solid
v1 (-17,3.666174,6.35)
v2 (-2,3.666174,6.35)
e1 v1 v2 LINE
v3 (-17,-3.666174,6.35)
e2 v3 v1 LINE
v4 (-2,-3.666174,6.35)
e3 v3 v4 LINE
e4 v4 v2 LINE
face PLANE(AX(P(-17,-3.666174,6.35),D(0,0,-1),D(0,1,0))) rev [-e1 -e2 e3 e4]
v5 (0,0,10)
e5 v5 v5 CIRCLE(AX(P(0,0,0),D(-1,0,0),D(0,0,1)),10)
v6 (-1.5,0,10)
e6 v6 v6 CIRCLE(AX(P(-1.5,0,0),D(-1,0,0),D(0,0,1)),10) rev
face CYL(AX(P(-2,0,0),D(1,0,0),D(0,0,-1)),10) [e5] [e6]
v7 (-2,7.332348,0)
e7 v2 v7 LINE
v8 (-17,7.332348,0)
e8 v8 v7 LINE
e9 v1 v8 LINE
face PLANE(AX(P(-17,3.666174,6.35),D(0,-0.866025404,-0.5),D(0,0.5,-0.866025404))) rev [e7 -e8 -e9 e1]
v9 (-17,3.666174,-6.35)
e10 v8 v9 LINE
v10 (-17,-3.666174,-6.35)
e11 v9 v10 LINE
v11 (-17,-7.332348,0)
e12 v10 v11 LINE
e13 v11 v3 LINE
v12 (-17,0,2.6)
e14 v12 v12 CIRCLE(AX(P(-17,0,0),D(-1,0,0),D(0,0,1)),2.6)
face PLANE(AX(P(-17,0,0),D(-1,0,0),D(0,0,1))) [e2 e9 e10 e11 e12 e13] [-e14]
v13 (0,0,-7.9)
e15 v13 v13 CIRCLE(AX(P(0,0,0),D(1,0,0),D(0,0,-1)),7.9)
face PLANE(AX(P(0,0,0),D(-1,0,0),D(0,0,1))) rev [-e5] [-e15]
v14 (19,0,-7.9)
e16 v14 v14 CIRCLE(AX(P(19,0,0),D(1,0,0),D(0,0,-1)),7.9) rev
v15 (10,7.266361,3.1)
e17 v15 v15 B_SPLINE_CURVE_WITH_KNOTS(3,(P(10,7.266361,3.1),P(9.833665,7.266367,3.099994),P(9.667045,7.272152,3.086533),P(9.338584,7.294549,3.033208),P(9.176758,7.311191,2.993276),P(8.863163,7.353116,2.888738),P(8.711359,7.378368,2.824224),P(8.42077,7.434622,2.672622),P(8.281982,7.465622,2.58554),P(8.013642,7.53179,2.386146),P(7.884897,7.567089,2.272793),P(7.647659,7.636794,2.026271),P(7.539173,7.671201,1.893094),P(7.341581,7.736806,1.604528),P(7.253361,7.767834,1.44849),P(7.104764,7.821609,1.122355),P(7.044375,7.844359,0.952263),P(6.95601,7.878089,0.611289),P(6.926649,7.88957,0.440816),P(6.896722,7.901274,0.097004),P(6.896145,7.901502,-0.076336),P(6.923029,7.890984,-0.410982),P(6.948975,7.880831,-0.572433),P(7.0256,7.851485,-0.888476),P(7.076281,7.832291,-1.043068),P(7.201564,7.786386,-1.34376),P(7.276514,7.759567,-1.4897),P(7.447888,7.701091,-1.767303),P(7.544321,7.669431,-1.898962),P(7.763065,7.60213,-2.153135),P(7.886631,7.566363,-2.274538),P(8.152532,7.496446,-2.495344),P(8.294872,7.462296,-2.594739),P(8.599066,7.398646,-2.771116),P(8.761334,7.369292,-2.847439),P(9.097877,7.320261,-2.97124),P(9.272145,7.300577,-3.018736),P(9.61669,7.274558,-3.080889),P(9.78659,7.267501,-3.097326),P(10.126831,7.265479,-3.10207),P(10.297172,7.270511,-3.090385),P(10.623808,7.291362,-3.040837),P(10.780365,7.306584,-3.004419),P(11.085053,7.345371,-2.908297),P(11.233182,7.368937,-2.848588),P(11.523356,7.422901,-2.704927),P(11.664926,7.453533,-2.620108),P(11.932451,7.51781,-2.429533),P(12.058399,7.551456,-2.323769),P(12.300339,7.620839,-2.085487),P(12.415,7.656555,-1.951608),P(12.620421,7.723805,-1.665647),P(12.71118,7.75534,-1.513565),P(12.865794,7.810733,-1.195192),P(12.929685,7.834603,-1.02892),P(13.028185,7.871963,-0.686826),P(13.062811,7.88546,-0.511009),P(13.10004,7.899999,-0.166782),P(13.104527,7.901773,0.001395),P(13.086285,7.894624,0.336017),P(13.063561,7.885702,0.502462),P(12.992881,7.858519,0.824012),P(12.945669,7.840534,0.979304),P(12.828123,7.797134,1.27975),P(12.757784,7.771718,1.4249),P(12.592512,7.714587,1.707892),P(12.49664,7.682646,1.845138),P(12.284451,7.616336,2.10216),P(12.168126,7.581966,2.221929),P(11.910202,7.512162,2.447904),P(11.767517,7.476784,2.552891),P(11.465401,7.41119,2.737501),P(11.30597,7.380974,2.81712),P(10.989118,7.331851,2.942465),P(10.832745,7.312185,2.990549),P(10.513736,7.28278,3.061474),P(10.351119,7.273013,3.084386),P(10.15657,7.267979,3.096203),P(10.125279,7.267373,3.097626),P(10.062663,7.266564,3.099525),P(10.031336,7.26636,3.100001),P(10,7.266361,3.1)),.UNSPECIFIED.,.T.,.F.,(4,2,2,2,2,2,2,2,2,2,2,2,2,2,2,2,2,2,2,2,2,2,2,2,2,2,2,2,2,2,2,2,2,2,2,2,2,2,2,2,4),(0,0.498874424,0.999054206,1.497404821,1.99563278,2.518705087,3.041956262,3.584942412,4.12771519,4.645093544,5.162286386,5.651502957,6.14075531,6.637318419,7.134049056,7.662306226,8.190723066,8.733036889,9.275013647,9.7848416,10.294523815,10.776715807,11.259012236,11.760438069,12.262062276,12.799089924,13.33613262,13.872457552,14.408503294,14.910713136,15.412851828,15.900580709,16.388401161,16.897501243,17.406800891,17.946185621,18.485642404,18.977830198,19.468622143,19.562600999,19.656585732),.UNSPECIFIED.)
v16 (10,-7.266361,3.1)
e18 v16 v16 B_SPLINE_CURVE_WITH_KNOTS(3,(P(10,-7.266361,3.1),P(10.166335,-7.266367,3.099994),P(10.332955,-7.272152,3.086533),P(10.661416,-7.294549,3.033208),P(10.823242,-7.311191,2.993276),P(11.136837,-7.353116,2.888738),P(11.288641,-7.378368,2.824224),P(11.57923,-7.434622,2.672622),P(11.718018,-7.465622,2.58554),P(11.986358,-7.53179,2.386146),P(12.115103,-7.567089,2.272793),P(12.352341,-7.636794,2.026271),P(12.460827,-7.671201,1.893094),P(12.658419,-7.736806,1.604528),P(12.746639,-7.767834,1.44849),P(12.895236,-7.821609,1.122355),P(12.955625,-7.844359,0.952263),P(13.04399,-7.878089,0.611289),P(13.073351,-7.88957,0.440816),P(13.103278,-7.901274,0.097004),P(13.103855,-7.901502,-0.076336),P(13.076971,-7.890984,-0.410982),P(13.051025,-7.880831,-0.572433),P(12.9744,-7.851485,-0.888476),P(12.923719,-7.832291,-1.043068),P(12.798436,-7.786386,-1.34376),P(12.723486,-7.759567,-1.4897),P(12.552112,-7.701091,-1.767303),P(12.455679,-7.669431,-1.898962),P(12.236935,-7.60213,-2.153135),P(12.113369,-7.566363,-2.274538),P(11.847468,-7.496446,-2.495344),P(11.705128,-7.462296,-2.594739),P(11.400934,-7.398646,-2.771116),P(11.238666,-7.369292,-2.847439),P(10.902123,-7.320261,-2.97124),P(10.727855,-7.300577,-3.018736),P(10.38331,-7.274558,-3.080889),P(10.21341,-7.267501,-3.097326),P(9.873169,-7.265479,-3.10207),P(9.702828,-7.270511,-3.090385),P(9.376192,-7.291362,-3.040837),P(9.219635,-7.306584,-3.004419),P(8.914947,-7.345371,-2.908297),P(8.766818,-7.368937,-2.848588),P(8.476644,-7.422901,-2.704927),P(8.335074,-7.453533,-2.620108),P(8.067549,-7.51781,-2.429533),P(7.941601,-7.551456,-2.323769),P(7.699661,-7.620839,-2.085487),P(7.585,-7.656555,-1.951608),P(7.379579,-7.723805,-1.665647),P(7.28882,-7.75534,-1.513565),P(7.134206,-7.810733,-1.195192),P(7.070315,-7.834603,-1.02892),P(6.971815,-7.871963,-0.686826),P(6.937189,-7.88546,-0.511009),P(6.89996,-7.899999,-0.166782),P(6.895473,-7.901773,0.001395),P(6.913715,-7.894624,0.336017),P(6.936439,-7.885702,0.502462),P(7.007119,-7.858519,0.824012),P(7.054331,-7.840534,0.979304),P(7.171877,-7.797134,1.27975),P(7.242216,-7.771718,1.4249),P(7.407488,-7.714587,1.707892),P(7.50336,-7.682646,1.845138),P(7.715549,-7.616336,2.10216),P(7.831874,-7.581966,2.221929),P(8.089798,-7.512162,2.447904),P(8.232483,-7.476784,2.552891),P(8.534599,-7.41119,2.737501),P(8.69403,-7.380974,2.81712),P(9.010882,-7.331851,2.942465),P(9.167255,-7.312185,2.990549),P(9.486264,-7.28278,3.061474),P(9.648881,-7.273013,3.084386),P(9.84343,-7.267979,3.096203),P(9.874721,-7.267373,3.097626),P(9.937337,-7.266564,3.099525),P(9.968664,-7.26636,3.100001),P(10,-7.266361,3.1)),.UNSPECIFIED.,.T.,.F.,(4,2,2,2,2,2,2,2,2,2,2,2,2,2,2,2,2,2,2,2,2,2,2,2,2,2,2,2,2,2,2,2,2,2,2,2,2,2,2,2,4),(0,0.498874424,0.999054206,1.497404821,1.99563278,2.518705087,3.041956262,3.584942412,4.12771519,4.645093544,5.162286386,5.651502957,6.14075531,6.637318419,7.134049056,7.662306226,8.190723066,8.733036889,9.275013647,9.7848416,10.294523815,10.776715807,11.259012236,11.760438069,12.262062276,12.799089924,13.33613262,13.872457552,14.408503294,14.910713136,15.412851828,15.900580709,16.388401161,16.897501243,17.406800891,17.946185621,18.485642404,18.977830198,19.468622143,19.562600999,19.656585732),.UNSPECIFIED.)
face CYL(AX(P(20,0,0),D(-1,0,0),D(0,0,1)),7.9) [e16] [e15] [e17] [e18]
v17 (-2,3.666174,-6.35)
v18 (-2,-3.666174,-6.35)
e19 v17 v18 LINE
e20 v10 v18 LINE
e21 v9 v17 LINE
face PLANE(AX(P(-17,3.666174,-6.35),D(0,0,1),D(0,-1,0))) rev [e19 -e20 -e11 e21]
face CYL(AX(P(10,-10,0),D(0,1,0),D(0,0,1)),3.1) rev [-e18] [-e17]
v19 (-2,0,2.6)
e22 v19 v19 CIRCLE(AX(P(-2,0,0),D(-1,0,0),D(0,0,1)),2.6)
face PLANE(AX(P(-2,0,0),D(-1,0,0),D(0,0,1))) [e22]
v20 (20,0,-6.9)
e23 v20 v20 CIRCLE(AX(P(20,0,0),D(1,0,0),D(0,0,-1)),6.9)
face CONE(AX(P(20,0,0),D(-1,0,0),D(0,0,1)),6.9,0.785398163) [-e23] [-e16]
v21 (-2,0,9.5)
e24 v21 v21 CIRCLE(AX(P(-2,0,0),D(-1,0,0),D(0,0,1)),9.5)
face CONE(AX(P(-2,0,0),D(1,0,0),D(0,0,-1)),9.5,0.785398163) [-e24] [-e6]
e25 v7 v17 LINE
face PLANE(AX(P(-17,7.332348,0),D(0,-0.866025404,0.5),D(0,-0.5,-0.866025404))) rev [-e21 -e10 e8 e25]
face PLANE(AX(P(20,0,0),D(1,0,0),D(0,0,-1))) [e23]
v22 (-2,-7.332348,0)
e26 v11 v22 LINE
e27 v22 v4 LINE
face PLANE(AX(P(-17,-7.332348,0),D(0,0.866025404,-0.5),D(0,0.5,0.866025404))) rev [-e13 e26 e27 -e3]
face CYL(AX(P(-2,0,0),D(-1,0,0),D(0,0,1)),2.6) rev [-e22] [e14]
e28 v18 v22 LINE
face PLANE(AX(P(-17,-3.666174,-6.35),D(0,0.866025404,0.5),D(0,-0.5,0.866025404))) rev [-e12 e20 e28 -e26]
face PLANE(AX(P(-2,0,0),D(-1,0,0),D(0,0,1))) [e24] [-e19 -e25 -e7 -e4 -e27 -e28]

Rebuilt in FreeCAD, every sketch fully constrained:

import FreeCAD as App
import Part
import Sketcher
from FreeCAD import Vector
Q = App.Units.Quantity


def edges_at(feature, points):
    """Names of the edges that pass closest to the given points."""
    edges = feature.Shape.Edges
    near = lambda p: min(range(len(edges)), key=lambda i: edges[i].distToShape(Part.Vertex(*p))[0])
    return sorted({f"Edge{near(p) + 1}" for p in points})


def add_polygon(sketch, points):
    """Adds a closed chain of lines whose ends are joined by coincident constraints."""
    first, n = sketch.GeometryCount, len(points)
    for a, b in zip(points, points[1:] + points[:1]):
        sketch.addGeometry(Part.LineSegment(App.Vector(*a, 0), App.Vector(*b, 0)), False)
    for i in range(n):
        sketch.addConstraint(Sketcher.Constraint("Coincident", first + i, 2, first + (i + 1) % n, 1))

doc = App.newDocument("Part")
body = doc.addObject("PartDesign::Body", "Body")

# Sketch on YZ plane
sketch1 = body.newObject("Sketcher::SketchObject", "Sketch")
sketch1.AttachmentSupport = (doc.getObject("YZ_Plane"), [""])
sketch1.MapMode = "FlatFace"
sketch1.addGeometry(Part.Circle(Vector(0, 0, 0), Vector(0, 0, 1), 8), False)
sketch1.addConstraint([
    Sketcher.Constraint("Coincident", 0, 3, -1, 1),
    Sketcher.Constraint("Diameter", 0, Q("15.8 mm")),
])
pad1 = body.newObject("PartDesign::Pad", "Pad")
pad1.Profile = sketch1
pad1.Length = 20

# Sketch on YZ plane
sketch2 = body.newObject("Sketcher::SketchObject", "Sketch001")
sketch2.AttachmentSupport = (doc.getObject("YZ_Plane"), [""])
sketch2.MapMode = "FlatFace"
sketch2.addGeometry(Part.Circle(Vector(0, 0, 0), Vector(0, 0, 1), 10), False)
sketch2.addConstraint([
    Sketcher.Constraint("Coincident", 0, 3, -1, 1),
    Sketcher.Constraint("Diameter", 0, Q("20 mm")),
])
pad2 = body.newObject("PartDesign::Pad", "Pad001")
pad2.Profile = sketch2
pad2.Length = 2
pad2.Reversed = True

# Sketch on YZ plane
sketch3 = body.newObject("Sketcher::SketchObject", "Sketch002")
sketch3.AttachmentSupport = (doc.getObject("YZ_Plane"), [""])
sketch3.MapMode = "FlatFace"
sketch3.AttachmentOffset = App.Placement(Vector(0, 0, -2), App.Rotation())
add_polygon(sketch3, [(4, 6), (7, 0), (4, -6), (-4, -6), (-7, 0), (-4, 6)])  # lines 0-5
sketch3.addConstraint([
    Sketcher.Constraint("Horizontal", 2),
    Sketcher.Constraint("Horizontal", 5),
    Sketcher.Constraint("Symmetric", 0, 2, 3, 2, -1, 1),
    Sketcher.Constraint("Symmetric", 1, 2, 4, 2, -1, 1),
    Sketcher.Constraint("PointOnObject", 0, 2, -1),
    Sketcher.Constraint("Parallel", 0, 3),
    Sketcher.Constraint("Vertical", 2, 2, 4, 2),
    Sketcher.Constraint("Angle", 0, Q("-60 deg")),
    Sketcher.Constraint("DistanceY", 2, 2, 4, 2, Q("12.7 mm")),
    Sketcher.Constraint("DistanceX", 2, 2, 2, 1, Q("7.332348 mm")),
])
pad3 = body.newObject("PartDesign::Pad", "Pad002")
pad3.Profile = sketch3
pad3.Length = 15
pad3.Reversed = True

# Sketch on XZ plane
sketch4 = body.newObject("Sketcher::SketchObject", "Sketch003")
sketch4.AttachmentSupport = (doc.getObject("XZ_Plane"), [""])
sketch4.MapMode = "FlatFace"
sketch4.addGeometry(Part.Circle(Vector(10, 0, 0), Vector(0, 0, 1), 3.1), False)
sketch4.addConstraint([
    Sketcher.Constraint("PointOnObject", 0, 3, -1),
    Sketcher.Constraint("Diameter", 0, Q("6.2 mm")),
    Sketcher.Constraint("DistanceX", -1, 1, 0, 3, Q("10 mm")),
])
pocket1 = body.newObject("PartDesign::Pocket", "Pocket")
pocket1.Profile = sketch4
pocket1.Length = 20
pocket1.Midplane = True
doc.recompute()

chamfer = body.newObject("PartDesign::Chamfer", "Chamfer")
chamfer.Base = (pocket1, edges_at(pocket1, [(-2, 0, -10)]))
chamfer.Size = 0.5

# Sketch on YZ plane
sketch5 = body.newObject("Sketcher::SketchObject", "Sketch004")
sketch5.AttachmentSupport = (doc.getObject("YZ_Plane"), [""])
sketch5.MapMode = "FlatFace"
sketch5.AttachmentOffset = App.Placement(Vector(0, 0, -17), App.Rotation())
sketch5.addGeometry(Part.Circle(Vector(0, 0, 0), Vector(0, 0, 1), 2.6), False)
sketch5.addConstraint([
    Sketcher.Constraint("Coincident", 0, 3, -1, 1),
    Sketcher.Constraint("Diameter", 0, Q("5.2 mm")),
])
pocket2 = body.newObject("PartDesign::Pocket", "Pocket001")
pocket2.Profile = sketch5
pocket2.Length = 15
pocket2.Reversed = True
doc.recompute()

chamfer2 = body.newObject("PartDesign::Chamfer", "Chamfer001")
chamfer2.Base = (pocket2, edges_at(pocket2, [(20, 0, 7.9)]))
chamfer2.Size = 1

doc.recompute()
